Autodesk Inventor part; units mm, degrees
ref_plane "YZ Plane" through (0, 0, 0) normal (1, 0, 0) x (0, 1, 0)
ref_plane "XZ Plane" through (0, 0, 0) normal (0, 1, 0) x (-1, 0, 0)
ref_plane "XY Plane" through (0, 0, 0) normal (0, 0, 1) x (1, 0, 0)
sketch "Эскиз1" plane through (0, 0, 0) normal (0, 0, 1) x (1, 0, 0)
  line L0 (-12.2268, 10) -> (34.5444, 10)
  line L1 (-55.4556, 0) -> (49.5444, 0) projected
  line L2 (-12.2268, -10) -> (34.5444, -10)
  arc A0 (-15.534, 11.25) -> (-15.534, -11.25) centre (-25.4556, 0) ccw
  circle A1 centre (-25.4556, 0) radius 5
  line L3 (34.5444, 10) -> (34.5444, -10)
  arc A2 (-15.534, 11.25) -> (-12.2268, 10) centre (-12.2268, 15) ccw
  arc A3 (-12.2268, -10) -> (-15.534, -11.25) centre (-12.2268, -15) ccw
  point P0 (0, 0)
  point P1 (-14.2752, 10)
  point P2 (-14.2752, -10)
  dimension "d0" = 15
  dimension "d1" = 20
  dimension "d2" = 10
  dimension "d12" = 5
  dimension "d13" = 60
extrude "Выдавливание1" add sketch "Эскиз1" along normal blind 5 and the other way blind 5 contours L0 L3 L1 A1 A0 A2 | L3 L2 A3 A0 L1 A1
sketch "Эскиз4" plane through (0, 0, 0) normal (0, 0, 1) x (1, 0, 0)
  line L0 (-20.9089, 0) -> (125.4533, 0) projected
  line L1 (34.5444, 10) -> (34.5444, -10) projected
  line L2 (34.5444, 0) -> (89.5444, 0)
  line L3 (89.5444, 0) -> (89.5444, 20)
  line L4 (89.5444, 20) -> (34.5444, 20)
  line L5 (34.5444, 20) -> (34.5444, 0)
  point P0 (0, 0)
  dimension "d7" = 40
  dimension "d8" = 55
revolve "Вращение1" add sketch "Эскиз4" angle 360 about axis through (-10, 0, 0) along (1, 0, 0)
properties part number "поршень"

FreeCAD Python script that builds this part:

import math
import FreeCAD as App
import Part
import Sketcher

V = App.Vector
Q = App.Units.Quantity


def add_polygon(sketch, points):
    """Adds a closed chain of lines whose ends are joined by coincident constraints."""
    first, n = sketch.GeometryCount, len(points)
    for a, b in zip(points, points[1:] + points[:1]):
        sketch.addGeometry(Part.LineSegment(App.Vector(*a, 0), App.Vector(*b, 0)), False)
    for i in range(n):
        sketch.addConstraint(Sketcher.Constraint("Coincident", first + i, 2, first + (i + 1) % n, 1))

doc = App.newDocument("Part")
params = doc.addObject("Spreadsheet::Sheet", "Params")
for row, (alias, value) in enumerate([
    ("sketch1_diameter", "10 mm"),
    ("sketch1_radius", "15 mm"),
    ("sketch1_height", "20 mm"),
    ("pad1_length", "5 mm"),
    ("pad1_length2", "5 mm"),
    ("sketch2_width", "55 mm"),
    ("sketch2_height", "20 mm"),
    ("revolution_angle", "360 deg"),
], start=1):
    params.set(f"A{row}", alias)
    params.set(f"B{row}", "=" + value)
    params.setAlias(f"B{row}", alias)

body = doc.addObject("PartDesign::Body", "Body")

# Sketch on XY plane
sketch1 = body.newObject("Sketcher::SketchObject", "Sketch")
sketch1.AttachmentSupport = (doc.getObject("XY_Plane"), [""])
sketch1.MapMode = "FlatFace"
sketch1.addGeometry([
    Part.LineSegment(V(34.5, 10, 0), V(-12.2, 10, 0)),  # 0
    Part.ArcOfCircle(Part.Circle(V(-12.2, 15, 0), V(0, 0, 1), 5), math.radians(-131), math.radians(-90)),  # 1
    Part.ArcOfCircle(Part.Circle(V(-25.5, 0, 0), V(0, 0, 1), 15), math.radians(49), math.radians(311)),  # 2
    Part.ArcOfCircle(Part.Circle(V(-12.2, -15, 0), V(0, 0, 1), 5), math.radians(90), math.radians(131)),  # 3
    Part.LineSegment(V(-12.2, -10, 0), V(34.5, -10, 0)),  # 4
    Part.LineSegment(V(34.5, -10, 0), V(34.5, 10, 0)),  # 5
    Part.Circle(V(-25.5, 0, 0), V(0, 0, 1), 5),  # 6
], False)
sketch1.addConstraint([
    Sketcher.Constraint("Tangent", 0, 2, 1, 2),
    Sketcher.Constraint("Tangent", 1, 1, 2, 1),
    Sketcher.Constraint("Tangent", 2, 2, 3, 2),
    Sketcher.Constraint("Tangent", 3, 1, 4, 1),
    Sketcher.Constraint("Coincident", 4, 2, 5, 1),
    Sketcher.Constraint("Coincident", 5, 2, 0, 1),
    Sketcher.Constraint("Horizontal", 0),
    Sketcher.Constraint("Horizontal", 4),
    Sketcher.Constraint("Vertical", 5),
    Sketcher.Constraint("Coincident", 6, 3, 2, 3),
    Sketcher.Constraint("Equal", 1, 3),
    Sketcher.Constraint("Equal", 3, 6),
    Sketcher.Constraint("Symmetric", 1, 3, 3, 3, -1),
    Sketcher.Constraint("Diameter", 6, Q("10 mm")),
    Sketcher.Constraint("Radius", 2, Q("15 mm")),
    Sketcher.Constraint("DistanceY", 5, 1, 5, 2, Q("20 mm")),
    Sketcher.Constraint("DistanceX", 0, 2, 0, 1, Q("46.7712 mm")),
    Sketcher.Constraint("DistanceX", 1, 1, -1, 1, Q("15.534 mm")),
])
sketch1.setExpression("Constraints[13]", "Params.sketch1_diameter")
sketch1.setExpression("Constraints[14]", "Params.sketch1_radius")
sketch1.setExpression("Constraints[15]", "Params.sketch1_height")
pad1 = body.newObject("PartDesign::Pad", "Pad")
pad1.Profile = sketch1
pad1.Type = "TwoLengths"
pad1.setExpression("Length", "Params.pad1_length")
pad1.setExpression("Length2", "Params.pad1_length2")

# Sketch on XY plane
sketch2 = body.newObject("Sketcher::SketchObject", "Sketch001")
sketch2.AttachmentSupport = (doc.getObject("XY_Plane"), [""])
sketch2.MapMode = "FlatFace"
add_polygon(sketch2, [(35, 20), (35, 0), (90, 0), (90, 20)])  # lines 0-3
sketch2.addConstraint([
    Sketcher.Constraint("Vertical", 0),
    Sketcher.Constraint("Horizontal", 1),
    Sketcher.Constraint("Vertical", 2),
    Sketcher.Constraint("Horizontal", 3),
    Sketcher.Constraint("PointOnObject", 0, 2, -1),
    Sketcher.Constraint("DistanceX", 1, 1, 1, 2, Q("55 mm")),
    Sketcher.Constraint("DistanceY", 0, 2, 0, 1, Q("20 mm")),
    Sketcher.Constraint("DistanceX", -1, 1, 0, 2, Q("34.5444 mm")),
])
sketch2.setExpression("Constraints[9]", "Params.sketch2_width")
sketch2.setExpression("Constraints[10]", "Params.sketch2_height")
revolution = body.newObject("PartDesign::Revolution", "Revolution")
revolution.Profile = sketch2
revolution.ReferenceAxis = (sketch2, ["H_Axis"])
revolution.setExpression("Angle", "Params.revolution_angle")

doc.recompute()
